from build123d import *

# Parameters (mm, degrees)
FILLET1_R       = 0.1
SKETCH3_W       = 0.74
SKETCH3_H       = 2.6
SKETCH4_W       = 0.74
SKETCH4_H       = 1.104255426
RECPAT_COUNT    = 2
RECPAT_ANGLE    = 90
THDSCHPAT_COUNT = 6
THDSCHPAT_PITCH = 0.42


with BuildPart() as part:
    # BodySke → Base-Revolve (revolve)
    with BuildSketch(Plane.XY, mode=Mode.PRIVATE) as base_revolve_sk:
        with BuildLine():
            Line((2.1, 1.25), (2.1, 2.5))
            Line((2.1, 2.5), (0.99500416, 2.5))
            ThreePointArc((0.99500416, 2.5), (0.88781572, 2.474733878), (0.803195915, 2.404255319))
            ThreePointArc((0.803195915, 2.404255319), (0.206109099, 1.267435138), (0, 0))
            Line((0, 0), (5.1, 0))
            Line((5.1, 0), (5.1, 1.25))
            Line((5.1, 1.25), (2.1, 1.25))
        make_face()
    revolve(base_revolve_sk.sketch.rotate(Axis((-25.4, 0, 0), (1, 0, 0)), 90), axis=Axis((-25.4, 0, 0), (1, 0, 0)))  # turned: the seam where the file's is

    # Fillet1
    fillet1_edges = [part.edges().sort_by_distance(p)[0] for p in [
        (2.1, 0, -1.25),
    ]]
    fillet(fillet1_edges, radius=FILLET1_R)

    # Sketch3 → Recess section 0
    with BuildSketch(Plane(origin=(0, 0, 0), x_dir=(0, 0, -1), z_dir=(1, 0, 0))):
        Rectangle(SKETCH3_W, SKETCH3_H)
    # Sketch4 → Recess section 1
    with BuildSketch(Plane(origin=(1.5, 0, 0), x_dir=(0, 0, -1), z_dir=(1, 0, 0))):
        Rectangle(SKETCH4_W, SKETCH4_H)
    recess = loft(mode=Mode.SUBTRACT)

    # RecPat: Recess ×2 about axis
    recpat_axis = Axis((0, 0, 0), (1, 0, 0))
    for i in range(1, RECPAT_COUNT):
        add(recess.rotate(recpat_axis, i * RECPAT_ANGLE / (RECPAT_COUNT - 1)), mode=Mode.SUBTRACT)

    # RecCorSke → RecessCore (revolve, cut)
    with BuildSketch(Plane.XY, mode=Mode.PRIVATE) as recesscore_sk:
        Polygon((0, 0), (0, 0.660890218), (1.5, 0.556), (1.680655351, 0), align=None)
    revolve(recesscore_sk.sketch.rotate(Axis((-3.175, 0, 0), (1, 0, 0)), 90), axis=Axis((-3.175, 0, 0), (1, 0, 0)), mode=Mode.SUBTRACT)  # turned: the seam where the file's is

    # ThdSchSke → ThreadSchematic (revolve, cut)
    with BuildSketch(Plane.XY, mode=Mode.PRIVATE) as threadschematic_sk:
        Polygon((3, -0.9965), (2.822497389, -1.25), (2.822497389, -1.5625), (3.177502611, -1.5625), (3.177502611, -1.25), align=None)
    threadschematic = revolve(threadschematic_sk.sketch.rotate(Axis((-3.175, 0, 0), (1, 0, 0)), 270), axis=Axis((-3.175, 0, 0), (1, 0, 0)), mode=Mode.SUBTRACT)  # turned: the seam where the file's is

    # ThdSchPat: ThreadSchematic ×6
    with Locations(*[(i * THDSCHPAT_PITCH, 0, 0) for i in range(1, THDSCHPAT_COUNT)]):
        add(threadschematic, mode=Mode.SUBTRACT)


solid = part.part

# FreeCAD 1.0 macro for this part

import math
import FreeCAD as App
import Part
import Sketcher
Q = App.Units.Quantity


def edges_at(feature, points):
    """Names of the edges that pass closest to the given points."""
    edges = feature.Shape.Edges
    near = lambda p: min(range(len(edges)), key=lambda i: edges[i].distToShape(Part.Vertex(*p))[0])
    return sorted({f"Edge{near(p) + 1}" for p in points})

doc = App.newDocument("Part")
body = doc.addObject("PartDesign::Body", "Body")

sketch1 = body.newObject("Sketcher::SketchObject", "Sketch")
sketch1.AttachmentSupport = (doc.getObject("XY_Plane"), [""])
sketch1.MapMode = "FlatFace"
sketch1.addGeometry([
    Part.LineSegment(App.Vector(2.1, 1.25, 0), App.Vector(2.1, 2.5, 0)),
    Part.LineSegment(App.Vector(2.1, 2.5, 0), App.Vector(1, 2.5, 0)),
    Part.ArcOfCircle(Part.Circle(App.Vector(1, 2.26, 0), App.Vector(0, 0, 1), 0.24), math.radians(90), math.radians(143)),
    Part.ArcOfCircle(Part.Circle(App.Vector(4, 0, 0), App.Vector(0, 0, 1), 4), math.radians(143), math.radians(180)),
    Part.LineSegment(App.Vector(0, 0, 0), App.Vector(5.1, 0, 0)),
    Part.LineSegment(App.Vector(5.1, 0, 0), App.Vector(5.1, 1.25, 0)),
    Part.LineSegment(App.Vector(5.1, 1.25, 0), App.Vector(2.1, 1.25, 0)),
], False)
sketch1.addConstraint([
    Sketcher.Constraint("Coincident", 0, 2, 1, 1),
    Sketcher.Constraint("Tangent", 1, 2, 2, 1),
    Sketcher.Constraint("Tangent", 2, 2, 3, 1),
    Sketcher.Constraint("Coincident", 3, 2, 4, 1),
    Sketcher.Constraint("Coincident", 4, 2, 5, 1),
    Sketcher.Constraint("Coincident", 5, 2, 6, 1),
    Sketcher.Constraint("Coincident", 6, 2, 0, 1),
    Sketcher.Constraint("Vertical", 0),
    Sketcher.Constraint("Horizontal", 1),
    Sketcher.Constraint("Horizontal", 4),
    Sketcher.Constraint("Vertical", 5),
    Sketcher.Constraint("Horizontal", 6),
    Sketcher.Constraint("Coincident", 3, 2, -1, 1),
    Sketcher.Constraint("PointOnObject", 3, 3, -1),
    Sketcher.Constraint("Equal", 0, 5),
    Sketcher.Constraint("Radius", 3, Q("4 mm")),
    Sketcher.Constraint("DistanceX", 6, 2, 6, 1, Q("3 mm")),
    Sketcher.Constraint("Radius", 2, Q("0.24 mm")),
    Sketcher.Constraint("DistanceX", 4, 1, 4, 2, Q("5.1 mm")),
    Sketcher.Constraint("DistanceY", 0, 1, 0, 2, Q("1.25 mm")),
])
revolution = body.newObject("PartDesign::Revolution", "Revolution")
revolution.Profile = sketch1
revolution.ReferenceAxis = (sketch1, ["H_Axis"])
revolution.Angle = 360
doc.recompute()

fillet = body.newObject("PartDesign::Fillet", "Fillet")
fillet.Base = (revolution, edges_at(revolution, [(2.1, 0, -1.25)]))
fillet.Radius = 0.1

sketch2 = body.newObject("Sketcher::SketchObject", "Sketch001")
sketch2.AttachmentSupport = (doc.getObject("YZ_Plane"), [""])
sketch2.MapMode = "FlatFace"
sketch2.addGeometry([
    Part.LineSegment(App.Vector(1.3, 0.4, 0), App.Vector(-1.3, 0.4, 0)),
    Part.LineSegment(App.Vector(-1.3, 0.4, 0), App.Vector(-1.3, -0.4, 0)),
    Part.LineSegment(App.Vector(-1.3, -0.4, 0), App.Vector(1.3, -0.4, 0)),
    Part.LineSegment(App.Vector(1.3, -0.4, 0), App.Vector(1.3, 0.4, 0)),
], False)
sketch2.addConstraint([
    Sketcher.Constraint("Coincident", 0, 2, 1, 1),
    Sketcher.Constraint("Coincident", 1, 2, 2, 1),
    Sketcher.Constraint("Coincident", 2, 2, 3, 1),
    Sketcher.Constraint("Coincident", 3, 2, 0, 1),
    Sketcher.Constraint("Horizontal", 0),
    Sketcher.Constraint("Vertical", 1),
    Sketcher.Constraint("Horizontal", 2),
    Sketcher.Constraint("Vertical", 3),
    Sketcher.Constraint("Symmetric", 0, 2, 2, 2, -1, 1),
    Sketcher.Constraint("DistanceX", 0, 2, 0, 1, Q("2.6 mm")),
    Sketcher.Constraint("DistanceY", 1, 2, 1, 1, Q("0.74 mm")),
])

sketch3 = body.newObject("Sketcher::SketchObject", "Sketch002")
sketch3.AttachmentSupport = (doc.getObject("YZ_Plane"), [""])
sketch3.MapMode = "FlatFace"
sketch3.AttachmentOffset = App.Placement(App.Vector(0, 0, 1.5), App.Rotation())
sketch3.addGeometry([
    Part.LineSegment(App.Vector(0.6, 0.4, 0), App.Vector(-0.6, 0.4, 0)),
    Part.LineSegment(App.Vector(-0.6, 0.4, 0), App.Vector(-0.6, -0.4, 0)),
    Part.LineSegment(App.Vector(-0.6, -0.4, 0), App.Vector(0.6, -0.4, 0)),
    Part.LineSegment(App.Vector(0.6, -0.4, 0), App.Vector(0.6, 0.4, 0)),
], False)
sketch3.addConstraint([
    Sketcher.Constraint("Coincident", 0, 2, 1, 1),
    Sketcher.Constraint("Coincident", 1, 2, 2, 1),
    Sketcher.Constraint("Coincident", 2, 2, 3, 1),
    Sketcher.Constraint("Coincident", 3, 2, 0, 1),
    Sketcher.Constraint("Horizontal", 0),
    Sketcher.Constraint("Vertical", 1),
    Sketcher.Constraint("Horizontal", 2),
    Sketcher.Constraint("Vertical", 3),
    Sketcher.Constraint("Symmetric", 0, 2, 2, 2, -1, 1),
    Sketcher.Constraint("DistanceY", 1, 2, 1, 1, Q("0.74 mm")),
    Sketcher.Constraint("DistanceX", 0, 2, 0, 1, Q("1.104255 mm")),
])

subtractiveloft = body.newObject("PartDesign::SubtractiveLoft", "SubtractiveLoft")
subtractiveloft.Profile = sketch2
subtractiveloft.Sections = [sketch3]
doc.recompute()

polarpattern = body.newObject("PartDesign::PolarPattern", "PolarPattern")
polarpattern.Originals = [subtractiveloft]
polarpattern.Axis = (doc.getObject("X_Axis"), [""])
polarpattern.Angle = 90
polarpattern.Occurrences = 2
body.Tip = polarpattern

sketch4 = body.newObject("Sketcher::SketchObject", "Sketch003")
sketch4.AttachmentSupport = (doc.getObject("XY_Plane"), [""])
sketch4.MapMode = "FlatFace"
sketch4.addGeometry([
    Part.LineSegment(App.Vector(0, 0.7, 0), App.Vector(0, 0, 0)),
    Part.LineSegment(App.Vector(0, 0, 0), App.Vector(1.7, 0, 0)),
    Part.LineSegment(App.Vector(1.7, 0, 0), App.Vector(1.5, 0.6, 0)),
    Part.LineSegment(App.Vector(1.5, 0.6, 0), App.Vector(0, 0.7, 0)),
], False)
sketch4.addConstraint([
    Sketcher.Constraint("Coincident", 0, 2, 1, 1),
    Sketcher.Constraint("Coincident", 1, 2, 2, 1),
    Sketcher.Constraint("Coincident", 2, 2, 3, 1),
    Sketcher.Constraint("Coincident", 3, 2, 0, 1),
    Sketcher.Constraint("Vertical", 0),
    Sketcher.Constraint("Horizontal", 1),
    Sketcher.Constraint("Coincident", 0, 2, -1, 1),
    Sketcher.Constraint("Angle", 2, Q("108 deg")),
    Sketcher.Constraint("Angle", 3, Q("176 deg")),
    Sketcher.Constraint("DistanceX", -1, 1, 2, 2, Q("1.5 mm")),
    Sketcher.Constraint("DistanceY", -1, 1, 2, 2, Q("0.556 mm")),
])
groove = body.newObject("PartDesign::Groove", "Groove")
groove.Profile = sketch4
groove.ReferenceAxis = (sketch4, ["H_Axis"])
groove.Angle = 360

sketch5 = body.newObject("Sketcher::SketchObject", "Sketch004")
sketch5.AttachmentSupport = (doc.getObject("XY_Plane"), [""])
sketch5.MapMode = "FlatFace"
sketch5.addGeometry([
    Part.LineSegment(App.Vector(3, -1, 0), App.Vector(2.82, -1.25, 0)),
    Part.LineSegment(App.Vector(2.82, -1.25, 0), App.Vector(2.82, -1.56, 0)),
    Part.LineSegment(App.Vector(2.82, -1.56, 0), App.Vector(3.18, -1.56, 0)),
    Part.LineSegment(App.Vector(3.18, -1.56, 0), App.Vector(3.18, -1.25, 0)),
    Part.LineSegment(App.Vector(3.18, -1.25, 0), App.Vector(3, -1, 0)),
], False)
sketch5.addConstraint([
    Sketcher.Constraint("Coincident", 0, 2, 1, 1),
    Sketcher.Constraint("Coincident", 1, 2, 2, 1),
    Sketcher.Constraint("Coincident", 2, 2, 3, 1),
    Sketcher.Constraint("Coincident", 3, 2, 4, 1),
    Sketcher.Constraint("Coincident", 4, 2, 0, 1),
    Sketcher.Constraint("Vertical", 1),
    Sketcher.Constraint("Horizontal", 2),
    Sketcher.Constraint("Vertical", 3),
    Sketcher.Constraint("Horizontal", 0, 2, 3, 2),
    Sketcher.Constraint("Equal", 0, 4),
    Sketcher.Constraint("Angle", 0, Q("-125 deg")),
    Sketcher.Constraint("DistanceX", -1, 1, 4, 2, Q("3 mm")),
    Sketcher.Constraint("DistanceY", 0, 2, -1, 1, Q("1.25 mm")),
    Sketcher.Constraint("DistanceY", 1, 2, 1, 1, Q("0.3125 mm")),
    Sketcher.Constraint("DistanceY", 1, 2, 4, 2, Q("0.566 mm")),
])
groove2 = body.newObject("PartDesign::Groove", "Groove001")
groove2.Profile = sketch5
groove2.ReferenceAxis = (sketch5, ["H_Axis"])
groove2.Angle = 360
doc.recompute()

linearpattern = body.newObject("PartDesign::LinearPattern", "LinearPattern")
linearpattern.Originals = [groove2]
linearpattern.Direction = (doc.getObject("X_Axis"), [""])
linearpattern.Mode = "offset"
linearpattern.Offset = 0.42
linearpattern.Occurrences = 6
body.Tip = linearpattern

doc.recompute()
